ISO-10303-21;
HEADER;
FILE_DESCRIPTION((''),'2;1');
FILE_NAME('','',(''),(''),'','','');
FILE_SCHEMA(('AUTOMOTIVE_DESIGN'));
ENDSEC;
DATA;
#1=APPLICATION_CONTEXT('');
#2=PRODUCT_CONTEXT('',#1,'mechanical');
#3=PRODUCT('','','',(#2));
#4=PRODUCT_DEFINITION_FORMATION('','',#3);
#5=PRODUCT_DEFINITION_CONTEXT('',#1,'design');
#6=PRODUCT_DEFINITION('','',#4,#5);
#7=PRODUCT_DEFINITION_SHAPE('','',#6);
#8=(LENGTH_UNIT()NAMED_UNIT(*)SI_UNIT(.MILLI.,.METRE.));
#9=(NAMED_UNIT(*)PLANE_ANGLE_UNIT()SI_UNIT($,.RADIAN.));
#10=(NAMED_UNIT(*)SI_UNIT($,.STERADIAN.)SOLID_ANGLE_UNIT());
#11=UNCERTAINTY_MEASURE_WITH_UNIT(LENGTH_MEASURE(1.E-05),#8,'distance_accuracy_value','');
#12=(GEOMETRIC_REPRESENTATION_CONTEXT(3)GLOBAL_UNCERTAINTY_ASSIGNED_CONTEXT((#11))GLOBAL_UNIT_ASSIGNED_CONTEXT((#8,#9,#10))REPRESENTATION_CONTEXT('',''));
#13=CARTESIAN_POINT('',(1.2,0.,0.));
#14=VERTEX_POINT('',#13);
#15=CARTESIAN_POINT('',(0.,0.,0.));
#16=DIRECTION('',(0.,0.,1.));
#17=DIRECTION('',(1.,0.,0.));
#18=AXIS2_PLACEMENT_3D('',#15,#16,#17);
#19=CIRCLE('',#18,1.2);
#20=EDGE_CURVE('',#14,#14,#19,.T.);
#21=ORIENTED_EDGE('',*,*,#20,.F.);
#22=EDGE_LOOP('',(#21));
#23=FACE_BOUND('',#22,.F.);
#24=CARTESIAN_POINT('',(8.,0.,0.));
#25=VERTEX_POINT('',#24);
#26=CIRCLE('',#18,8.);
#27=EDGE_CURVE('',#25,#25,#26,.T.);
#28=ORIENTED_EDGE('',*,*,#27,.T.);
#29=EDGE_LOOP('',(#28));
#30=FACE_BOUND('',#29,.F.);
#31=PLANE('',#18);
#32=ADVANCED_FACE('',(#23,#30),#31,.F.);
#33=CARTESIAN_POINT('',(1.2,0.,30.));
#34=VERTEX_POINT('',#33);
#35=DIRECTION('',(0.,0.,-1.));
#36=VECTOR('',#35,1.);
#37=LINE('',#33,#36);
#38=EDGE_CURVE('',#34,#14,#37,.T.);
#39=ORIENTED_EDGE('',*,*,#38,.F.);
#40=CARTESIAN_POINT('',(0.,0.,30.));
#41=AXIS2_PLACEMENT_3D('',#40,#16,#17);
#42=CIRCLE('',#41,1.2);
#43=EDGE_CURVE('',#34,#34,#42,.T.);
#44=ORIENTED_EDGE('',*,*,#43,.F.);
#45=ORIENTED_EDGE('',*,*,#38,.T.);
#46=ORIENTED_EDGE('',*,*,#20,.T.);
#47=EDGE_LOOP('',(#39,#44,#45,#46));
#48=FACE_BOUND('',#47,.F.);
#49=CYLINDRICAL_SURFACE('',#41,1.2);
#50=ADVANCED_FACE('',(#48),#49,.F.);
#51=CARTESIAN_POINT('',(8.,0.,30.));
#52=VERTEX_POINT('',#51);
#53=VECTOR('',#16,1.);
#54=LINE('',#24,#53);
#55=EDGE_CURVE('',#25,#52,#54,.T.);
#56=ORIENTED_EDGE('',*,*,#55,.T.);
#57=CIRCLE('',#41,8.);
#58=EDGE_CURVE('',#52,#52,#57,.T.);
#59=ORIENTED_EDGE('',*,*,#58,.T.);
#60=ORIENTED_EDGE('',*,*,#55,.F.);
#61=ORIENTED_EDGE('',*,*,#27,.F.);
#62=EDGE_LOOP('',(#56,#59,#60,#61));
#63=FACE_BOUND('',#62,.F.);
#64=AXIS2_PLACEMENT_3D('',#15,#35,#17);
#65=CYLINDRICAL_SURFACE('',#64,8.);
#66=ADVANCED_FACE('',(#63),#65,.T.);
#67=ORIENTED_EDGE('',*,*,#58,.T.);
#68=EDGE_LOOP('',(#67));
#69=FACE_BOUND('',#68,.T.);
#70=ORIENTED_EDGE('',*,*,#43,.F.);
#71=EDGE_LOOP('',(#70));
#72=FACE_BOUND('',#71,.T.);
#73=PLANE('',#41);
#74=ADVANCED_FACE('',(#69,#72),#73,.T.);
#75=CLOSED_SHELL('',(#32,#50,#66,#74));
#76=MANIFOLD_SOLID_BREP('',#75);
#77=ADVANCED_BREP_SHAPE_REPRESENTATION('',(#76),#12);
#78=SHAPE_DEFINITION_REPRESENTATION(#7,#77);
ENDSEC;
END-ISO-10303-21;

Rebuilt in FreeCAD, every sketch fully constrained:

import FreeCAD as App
import Part
import Sketcher
Q = App.Units.Quantity

doc = App.newDocument("Part")
body = doc.addObject("PartDesign::Body", "Body")

sketch1 = body.newObject("Sketcher::SketchObject", "Sketch")
sketch1.AttachmentSupport = (doc.getObject("XY_Plane"), [""])
sketch1.MapMode = "FlatFace"
sketch1.addGeometry(Part.Circle(App.Vector(0, 0, 0), App.Vector(0, 0, 1), 8), False)
sketch1.addConstraint(Sketcher.Constraint("Coincident", 0, 3, -1, 1))
sketch1.addConstraint(Sketcher.Constraint("Diameter", 0, Q("16 mm")))
pad1 = body.newObject("PartDesign::Pad", "Pad")
pad1.Profile = sketch1
pad1.Length = 30

sketch2 = body.newObject("Sketcher::SketchObject", "Sketch001")
sketch2.AttachmentSupport = (doc.getObject("XY_Plane"), [""])
sketch2.MapMode = "FlatFace"
sketch2.AttachmentOffset = App.Placement(App.Vector(0, 0, 30), App.Rotation())
sketch2.addGeometry(Part.Circle(App.Vector(0, 0, 0), App.Vector(0, 0, 1), 1.2), False)
sketch2.addConstraint(Sketcher.Constraint("Coincident", 0, 3, -1, 1))
sketch2.addConstraint(Sketcher.Constraint("Diameter", 0, Q("2.4 mm")))
pocket1 = body.newObject("PartDesign::Pocket", "Pocket")
pocket1.Profile = sketch2
pocket1.Length = 35

doc.recompute()
